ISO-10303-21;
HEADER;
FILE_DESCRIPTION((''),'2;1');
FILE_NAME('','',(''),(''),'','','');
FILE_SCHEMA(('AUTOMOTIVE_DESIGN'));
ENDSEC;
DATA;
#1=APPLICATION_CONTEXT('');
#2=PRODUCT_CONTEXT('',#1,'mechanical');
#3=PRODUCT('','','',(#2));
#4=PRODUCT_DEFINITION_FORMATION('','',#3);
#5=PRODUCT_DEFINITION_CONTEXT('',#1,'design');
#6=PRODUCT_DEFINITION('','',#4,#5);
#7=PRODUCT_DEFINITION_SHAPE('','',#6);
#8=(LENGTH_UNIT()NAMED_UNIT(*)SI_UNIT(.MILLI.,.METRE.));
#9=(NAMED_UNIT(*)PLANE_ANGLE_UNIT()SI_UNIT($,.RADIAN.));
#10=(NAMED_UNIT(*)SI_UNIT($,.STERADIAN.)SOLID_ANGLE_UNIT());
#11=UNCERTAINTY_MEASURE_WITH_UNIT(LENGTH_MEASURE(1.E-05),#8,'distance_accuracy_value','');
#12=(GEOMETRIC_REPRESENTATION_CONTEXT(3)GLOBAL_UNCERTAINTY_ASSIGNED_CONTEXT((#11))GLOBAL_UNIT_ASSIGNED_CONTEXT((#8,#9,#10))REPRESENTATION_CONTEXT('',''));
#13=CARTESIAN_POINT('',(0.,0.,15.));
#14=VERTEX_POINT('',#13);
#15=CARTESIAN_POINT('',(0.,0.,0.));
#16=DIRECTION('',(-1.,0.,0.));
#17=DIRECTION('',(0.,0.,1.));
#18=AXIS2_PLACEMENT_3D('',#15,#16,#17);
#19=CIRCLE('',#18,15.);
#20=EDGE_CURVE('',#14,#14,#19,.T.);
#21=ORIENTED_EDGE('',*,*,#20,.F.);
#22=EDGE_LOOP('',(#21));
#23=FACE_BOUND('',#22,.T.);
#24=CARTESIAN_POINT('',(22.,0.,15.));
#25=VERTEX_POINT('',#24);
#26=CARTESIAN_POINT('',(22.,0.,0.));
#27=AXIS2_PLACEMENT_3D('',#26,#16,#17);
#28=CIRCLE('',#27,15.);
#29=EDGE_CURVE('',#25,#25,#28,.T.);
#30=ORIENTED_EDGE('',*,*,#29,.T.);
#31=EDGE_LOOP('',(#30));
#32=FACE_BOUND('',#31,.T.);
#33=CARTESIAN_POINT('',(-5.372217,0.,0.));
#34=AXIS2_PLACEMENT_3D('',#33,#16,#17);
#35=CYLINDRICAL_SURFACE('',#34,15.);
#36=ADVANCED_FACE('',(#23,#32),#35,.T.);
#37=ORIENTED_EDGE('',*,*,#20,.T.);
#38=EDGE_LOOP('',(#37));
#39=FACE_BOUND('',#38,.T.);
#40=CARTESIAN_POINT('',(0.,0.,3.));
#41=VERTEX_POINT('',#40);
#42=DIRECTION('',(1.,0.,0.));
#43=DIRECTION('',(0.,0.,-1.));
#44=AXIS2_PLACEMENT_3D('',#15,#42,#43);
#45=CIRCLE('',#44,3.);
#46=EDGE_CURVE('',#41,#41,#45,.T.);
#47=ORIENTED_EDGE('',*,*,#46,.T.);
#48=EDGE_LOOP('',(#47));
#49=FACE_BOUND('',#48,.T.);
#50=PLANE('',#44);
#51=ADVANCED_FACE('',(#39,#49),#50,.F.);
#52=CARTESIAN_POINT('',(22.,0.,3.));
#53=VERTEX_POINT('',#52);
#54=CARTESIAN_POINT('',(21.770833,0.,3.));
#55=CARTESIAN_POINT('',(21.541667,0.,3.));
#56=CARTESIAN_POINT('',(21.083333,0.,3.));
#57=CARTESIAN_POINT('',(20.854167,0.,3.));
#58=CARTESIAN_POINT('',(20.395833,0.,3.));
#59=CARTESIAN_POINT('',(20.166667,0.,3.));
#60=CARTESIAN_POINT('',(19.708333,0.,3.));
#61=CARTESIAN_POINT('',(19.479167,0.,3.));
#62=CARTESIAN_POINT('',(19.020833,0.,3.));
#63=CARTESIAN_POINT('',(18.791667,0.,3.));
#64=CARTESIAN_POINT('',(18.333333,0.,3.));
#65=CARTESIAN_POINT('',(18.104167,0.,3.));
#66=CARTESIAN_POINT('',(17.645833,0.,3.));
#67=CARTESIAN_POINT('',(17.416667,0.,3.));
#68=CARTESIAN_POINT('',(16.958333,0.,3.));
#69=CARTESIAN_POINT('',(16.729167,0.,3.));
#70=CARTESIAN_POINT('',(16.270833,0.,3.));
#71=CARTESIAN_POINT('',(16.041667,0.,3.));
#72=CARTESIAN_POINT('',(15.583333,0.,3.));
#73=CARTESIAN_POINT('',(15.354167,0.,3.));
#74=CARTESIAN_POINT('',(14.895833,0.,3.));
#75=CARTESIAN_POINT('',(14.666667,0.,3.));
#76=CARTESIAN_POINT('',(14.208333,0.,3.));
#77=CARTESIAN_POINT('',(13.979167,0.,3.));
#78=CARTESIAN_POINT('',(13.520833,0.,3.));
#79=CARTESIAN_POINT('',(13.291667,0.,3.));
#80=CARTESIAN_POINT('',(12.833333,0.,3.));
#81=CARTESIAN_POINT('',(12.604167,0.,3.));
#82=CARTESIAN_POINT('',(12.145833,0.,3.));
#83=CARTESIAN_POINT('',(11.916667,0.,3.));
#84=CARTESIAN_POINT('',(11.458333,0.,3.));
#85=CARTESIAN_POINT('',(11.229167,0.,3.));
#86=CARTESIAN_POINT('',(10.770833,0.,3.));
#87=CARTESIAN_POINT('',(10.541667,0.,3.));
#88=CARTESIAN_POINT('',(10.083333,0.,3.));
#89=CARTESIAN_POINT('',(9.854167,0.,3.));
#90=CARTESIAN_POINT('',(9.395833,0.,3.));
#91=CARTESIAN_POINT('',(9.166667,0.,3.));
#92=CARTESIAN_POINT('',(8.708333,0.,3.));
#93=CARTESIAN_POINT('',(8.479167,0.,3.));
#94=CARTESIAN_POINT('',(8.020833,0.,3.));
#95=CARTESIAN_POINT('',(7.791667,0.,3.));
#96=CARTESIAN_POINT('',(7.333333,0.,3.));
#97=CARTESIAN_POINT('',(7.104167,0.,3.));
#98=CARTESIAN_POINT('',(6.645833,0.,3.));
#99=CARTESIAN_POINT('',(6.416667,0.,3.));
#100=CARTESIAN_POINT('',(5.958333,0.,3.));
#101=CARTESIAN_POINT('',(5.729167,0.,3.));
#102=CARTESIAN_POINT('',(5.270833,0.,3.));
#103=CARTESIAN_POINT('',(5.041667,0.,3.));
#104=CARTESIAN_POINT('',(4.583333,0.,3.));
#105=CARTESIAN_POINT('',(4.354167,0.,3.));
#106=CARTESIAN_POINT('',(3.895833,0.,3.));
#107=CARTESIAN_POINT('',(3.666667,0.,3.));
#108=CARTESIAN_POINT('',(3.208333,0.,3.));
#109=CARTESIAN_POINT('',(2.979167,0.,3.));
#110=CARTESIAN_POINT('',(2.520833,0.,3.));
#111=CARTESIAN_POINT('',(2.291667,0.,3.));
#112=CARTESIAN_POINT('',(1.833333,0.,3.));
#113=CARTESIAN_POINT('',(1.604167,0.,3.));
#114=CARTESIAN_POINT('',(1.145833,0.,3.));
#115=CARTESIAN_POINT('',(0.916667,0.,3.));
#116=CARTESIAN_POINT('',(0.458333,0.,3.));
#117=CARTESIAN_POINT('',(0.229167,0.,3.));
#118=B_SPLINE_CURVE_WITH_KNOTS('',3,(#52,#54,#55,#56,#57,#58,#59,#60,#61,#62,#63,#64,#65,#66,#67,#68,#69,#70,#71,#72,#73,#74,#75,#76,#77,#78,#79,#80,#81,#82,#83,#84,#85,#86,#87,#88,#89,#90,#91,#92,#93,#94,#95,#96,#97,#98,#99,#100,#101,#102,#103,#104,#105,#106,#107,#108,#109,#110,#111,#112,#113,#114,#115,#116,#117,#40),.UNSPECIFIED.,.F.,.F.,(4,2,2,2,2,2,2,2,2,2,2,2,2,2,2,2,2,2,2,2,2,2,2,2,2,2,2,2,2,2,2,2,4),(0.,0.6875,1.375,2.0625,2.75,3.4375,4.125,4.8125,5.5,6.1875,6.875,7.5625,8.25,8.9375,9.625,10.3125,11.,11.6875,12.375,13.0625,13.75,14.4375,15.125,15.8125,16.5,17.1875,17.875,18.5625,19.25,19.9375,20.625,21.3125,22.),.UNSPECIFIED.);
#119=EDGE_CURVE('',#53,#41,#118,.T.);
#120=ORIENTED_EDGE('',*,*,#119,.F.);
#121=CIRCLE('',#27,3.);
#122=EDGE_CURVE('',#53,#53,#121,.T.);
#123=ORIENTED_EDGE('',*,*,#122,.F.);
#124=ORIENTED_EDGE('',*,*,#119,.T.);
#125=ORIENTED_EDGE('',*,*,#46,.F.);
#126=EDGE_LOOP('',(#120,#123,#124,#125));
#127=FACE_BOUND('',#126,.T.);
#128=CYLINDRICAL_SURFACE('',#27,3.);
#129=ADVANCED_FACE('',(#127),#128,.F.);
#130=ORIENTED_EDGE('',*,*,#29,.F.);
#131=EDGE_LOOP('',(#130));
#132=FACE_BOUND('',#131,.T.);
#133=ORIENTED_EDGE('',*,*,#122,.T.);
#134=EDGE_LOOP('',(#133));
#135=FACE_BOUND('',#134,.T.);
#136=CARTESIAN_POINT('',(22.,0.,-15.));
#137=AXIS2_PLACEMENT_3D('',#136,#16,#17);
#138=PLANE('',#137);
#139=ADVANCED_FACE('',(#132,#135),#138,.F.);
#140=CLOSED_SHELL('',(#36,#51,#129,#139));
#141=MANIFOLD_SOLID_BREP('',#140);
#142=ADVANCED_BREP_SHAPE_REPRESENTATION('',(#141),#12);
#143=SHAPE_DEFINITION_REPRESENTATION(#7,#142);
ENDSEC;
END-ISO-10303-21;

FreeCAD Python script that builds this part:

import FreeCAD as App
import Part
import Sketcher

V = App.Vector

doc = App.newDocument("Part")
params = doc.addObject("Spreadsheet::Sheet", "Params")
for row, (alias, value) in enumerate([
    ("sketch1_width", "22 mm"),
    ("sketch1_height", "15 mm"),
    ("revolution_angle", "360 deg"),
    ("sketch2_diameter", "6 mm"),
], start=1):
    params.set(f"A{row}", alias)
    params.set(f"B{row}", "=" + value)
    params.setAlias(f"B{row}", alias)

body = doc.addObject("PartDesign::Body", "Body")

# Sketch on XZ plane
sketch1 = body.newObject("Sketcher::SketchObject", "Sketch")
sketch1.AttachmentSupport = (doc.getObject("XZ_Plane"), [""])
sketch1.MapMode = "FlatFace"
sketch1.addGeometry(Part.LineSegment(V(0, -15, 0), V(0, 0, 0)), False)
sketch1.addGeometry(Part.LineSegment(V(0, 0, 0), V(22, 0, 0)), False)
sketch1.addGeometry(Part.LineSegment(V(22, 0, 0), V(22, -15, 0)), False)
sketch1.addGeometry(Part.LineSegment(V(22, -15, 0), V(0, -15, 0)), False)
sketch1.addConstraint(Sketcher.Constraint("Coincident", 0, 2, 1, 1))
sketch1.addConstraint(Sketcher.Constraint("Coincident", 1, 2, 2, 1))
sketch1.addConstraint(Sketcher.Constraint("Coincident", 2, 2, 3, 1))
sketch1.addConstraint(Sketcher.Constraint("Coincident", 3, 2, 0, 1))
sketch1.addConstraint(Sketcher.Constraint("Vertical", 0))
sketch1.addConstraint(Sketcher.Constraint("Horizontal", 1))
sketch1.addConstraint(Sketcher.Constraint("Vertical", 2))
sketch1.addConstraint(Sketcher.Constraint("Horizontal", 3))
sketch1.addConstraint(Sketcher.Constraint("Coincident", 0, 2, -1, 1))
sketch1.addConstraint(Sketcher.Constraint("DistanceX", 1, 1, 1, 2, 22.0))
sketch1.addConstraint(Sketcher.Constraint("DistanceY", 0, 1, 0, 2, 15.0))
sketch1.setExpression("Constraints[9]", "Params.sketch1_width")
sketch1.setExpression("Constraints[10]", "Params.sketch1_height")
revolution = body.newObject("PartDesign::Revolution", "Revolution")
revolution.Profile = sketch1
revolution.ReferenceAxis = (sketch1, ["H_Axis"])
revolution.setExpression("Angle", "Params.revolution_angle")

# Sketch on YZ plane
sketch2 = body.newObject("Sketcher::SketchObject", "Sketch001")
sketch2.AttachmentSupport = (doc.getObject("YZ_Plane"), [""])
sketch2.MapMode = "FlatFace"
sketch2.addGeometry(Part.Circle(V(0, 0, 0), V(0, 0, 1), 3), False)
sketch2.addConstraint(Sketcher.Constraint("Coincident", 0, 3, -1, 1))
sketch2.addConstraint(Sketcher.Constraint("Diameter", 0, 6.0))
sketch2.setExpression("Constraints[1]", "Params.sketch2_diameter")
pocket1 = body.newObject("PartDesign::Pocket", "Pocket")
pocket1.Profile = sketch2
pocket1.Type = "ThroughAll"
pocket1.Midplane = True

doc.recompute()
